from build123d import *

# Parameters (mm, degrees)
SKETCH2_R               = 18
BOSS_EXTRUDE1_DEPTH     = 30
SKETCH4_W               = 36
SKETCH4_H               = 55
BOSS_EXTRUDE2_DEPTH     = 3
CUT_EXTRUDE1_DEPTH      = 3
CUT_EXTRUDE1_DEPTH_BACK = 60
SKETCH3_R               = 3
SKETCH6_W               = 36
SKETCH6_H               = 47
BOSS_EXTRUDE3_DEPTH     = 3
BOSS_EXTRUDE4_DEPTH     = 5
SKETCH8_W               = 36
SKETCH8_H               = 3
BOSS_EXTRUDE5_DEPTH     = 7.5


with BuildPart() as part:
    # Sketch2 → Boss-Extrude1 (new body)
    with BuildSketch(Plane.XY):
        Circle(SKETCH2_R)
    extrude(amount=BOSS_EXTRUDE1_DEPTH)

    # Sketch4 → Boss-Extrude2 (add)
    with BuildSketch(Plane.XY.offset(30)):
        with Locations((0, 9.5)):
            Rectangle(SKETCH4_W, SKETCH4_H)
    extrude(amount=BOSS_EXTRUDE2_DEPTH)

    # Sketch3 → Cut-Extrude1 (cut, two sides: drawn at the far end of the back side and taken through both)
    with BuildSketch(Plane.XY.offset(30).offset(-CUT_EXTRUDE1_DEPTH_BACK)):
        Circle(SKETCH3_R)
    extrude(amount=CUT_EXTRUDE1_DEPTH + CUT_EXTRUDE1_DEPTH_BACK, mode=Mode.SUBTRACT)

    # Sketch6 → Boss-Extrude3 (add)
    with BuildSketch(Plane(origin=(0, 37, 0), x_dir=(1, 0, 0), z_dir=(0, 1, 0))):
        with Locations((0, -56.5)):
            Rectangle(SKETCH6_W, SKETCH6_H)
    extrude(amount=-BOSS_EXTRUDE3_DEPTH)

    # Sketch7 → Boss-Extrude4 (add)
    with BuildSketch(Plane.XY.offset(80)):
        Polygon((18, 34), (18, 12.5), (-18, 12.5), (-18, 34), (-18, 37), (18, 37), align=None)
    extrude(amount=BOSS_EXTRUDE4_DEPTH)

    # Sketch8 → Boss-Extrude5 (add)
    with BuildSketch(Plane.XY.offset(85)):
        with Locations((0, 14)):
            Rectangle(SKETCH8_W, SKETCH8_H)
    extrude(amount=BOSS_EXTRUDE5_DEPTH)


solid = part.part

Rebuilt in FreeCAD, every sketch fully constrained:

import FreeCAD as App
import Part
import Sketcher

V = App.Vector
Q = App.Units.Quantity

doc = App.newDocument("Part")
params = doc.addObject("Spreadsheet::Sheet", "Params")
for row, (alias, value) in enumerate([
    ("sketch1_diameter", "36 mm"),
    ("pad1_length", "30 mm"),
    ("sketch2_width", "36 mm"),
    ("sketch2_height", "55 mm"),
    ("pad2_length", "3 mm"),
    ("sketch3_diameter", "6 mm"),
    ("sketch4_width", "36 mm"),
    ("sketch4_height", "47 mm"),
    ("pad3_length", "3 mm"),
    ("sketch5_width", "36 mm"),
    ("sketch5_height", "24.5 mm"),
    ("pad4_length", "5 mm"),
    ("sketch6_width", "36 mm"),
    ("sketch6_height", "3 mm"),
    ("pad5_length", "7.5 mm"),
], start=1):
    params.set(f"A{row}", alias)
    params.set(f"B{row}", "=" + value)
    params.setAlias(f"B{row}", alias)

body = doc.addObject("PartDesign::Body", "Body")

# Sketch on XY plane
sketch1 = body.newObject("Sketcher::SketchObject", "Sketch")
sketch1.AttachmentSupport = (doc.getObject("XY_Plane"), [""])
sketch1.MapMode = "FlatFace"
sketch1.addGeometry(Part.Circle(V(0, 0, 0), V(0, 0, 1), 18), False)
sketch1.addConstraint([
    Sketcher.Constraint("Coincident", 0, 3, -1, 1),
    Sketcher.Constraint("Diameter", 0, Q("36 mm")),
])
sketch1.setExpression("Constraints[1]", "Params.sketch1_diameter")
pad1 = body.newObject("PartDesign::Pad", "Pad")
pad1.Profile = sketch1
pad1.setExpression("Length", "Params.pad1_length")

# Sketch on XY plane
sketch2 = body.newObject("Sketcher::SketchObject", "Sketch001")
sketch2.AttachmentSupport = (doc.getObject("XY_Plane"), [""])
sketch2.MapMode = "FlatFace"
sketch2.AttachmentOffset = App.Placement(V(0, 0, 30), App.Rotation())
sketch2.addGeometry([
    Part.LineSegment(V(-18, 37, 0), V(-18, -18, 0)),
    Part.LineSegment(V(-18, -18, 0), V(18, -18, 0)),
    Part.LineSegment(V(18, -18, 0), V(18, 37, 0)),
    Part.LineSegment(V(18, 37, 0), V(-18, 37, 0)),
], False)
sketch2.addConstraint([
    Sketcher.Constraint("Coincident", 0, 2, 1, 1),
    Sketcher.Constraint("Coincident", 1, 2, 2, 1),
    Sketcher.Constraint("Coincident", 2, 2, 3, 1),
    Sketcher.Constraint("Coincident", 3, 2, 0, 1),
    Sketcher.Constraint("Vertical", 0),
    Sketcher.Constraint("Horizontal", 1),
    Sketcher.Constraint("Vertical", 2),
    Sketcher.Constraint("Horizontal", 3),
    Sketcher.Constraint("DistanceX", 1, 1, 1, 2, Q("36 mm")),
    Sketcher.Constraint("DistanceY", 0, 2, 0, 1, Q("55 mm")),
    Sketcher.Constraint("DistanceX", 0, 2, -1, 1, Q("18 mm")),
    Sketcher.Constraint("DistanceY", 0, 2, -1, 1, Q("18 mm")),
])
sketch2.setExpression("Constraints[8]", "Params.sketch2_width")
sketch2.setExpression("Constraints[9]", "Params.sketch2_height")
pad2 = body.newObject("PartDesign::Pad", "Pad001")
pad2.Profile = sketch2
pad2.setExpression("Length", "Params.pad2_length")

# Sketch on XY plane
sketch3 = body.newObject("Sketcher::SketchObject", "Sketch002")
sketch3.AttachmentSupport = (doc.getObject("XY_Plane"), [""])
sketch3.MapMode = "FlatFace"
sketch3.AttachmentOffset = App.Placement(V(0, 0, 30), App.Rotation())
sketch3.addGeometry(Part.Circle(V(0, 0, 0), V(0, 0, 1), 3), False)
sketch3.addConstraint([
    Sketcher.Constraint("Coincident", 0, 3, -1, 1),
    Sketcher.Constraint("Diameter", 0, Q("6 mm")),
])
sketch3.setExpression("Constraints[1]", "Params.sketch3_diameter")
pocket1 = body.newObject("PartDesign::Pocket", "Pocket")
pocket1.Profile = sketch3
pocket1.Type = "ThroughAll"
pocket1.Midplane = True

# Sketch on XZ plane
sketch4 = body.newObject("Sketcher::SketchObject", "Sketch003")
sketch4.AttachmentSupport = (doc.getObject("XZ_Plane"), [""])
sketch4.MapMode = "FlatFace"
sketch4.AttachmentOffset = App.Placement(V(0, 0, -37), App.Rotation())
sketch4.addGeometry([
    Part.LineSegment(V(-18, 33, 0), V(-18, 80, 0)),
    Part.LineSegment(V(-18, 80, 0), V(18, 80, 0)),
    Part.LineSegment(V(18, 80, 0), V(18, 33, 0)),
    Part.LineSegment(V(18, 33, 0), V(-18, 33, 0)),
], False)
sketch4.addConstraint([
    Sketcher.Constraint("Coincident", 0, 2, 1, 1),
    Sketcher.Constraint("Coincident", 1, 2, 2, 1),
    Sketcher.Constraint("Coincident", 2, 2, 3, 1),
    Sketcher.Constraint("Coincident", 3, 2, 0, 1),
    Sketcher.Constraint("Vertical", 0),
    Sketcher.Constraint("Horizontal", 1),
    Sketcher.Constraint("Vertical", 2),
    Sketcher.Constraint("Horizontal", 3),
    Sketcher.Constraint("DistanceX", 1, 1, 1, 2, Q("36 mm")),
    Sketcher.Constraint("DistanceY", 0, 1, 0, 2, Q("47 mm")),
    Sketcher.Constraint("DistanceX", 0, 2, -1, 1, Q("18 mm")),
    Sketcher.Constraint("DistanceY", -1, 1, 0, 2, Q("80 mm")),
])
sketch4.setExpression("Constraints[8]", "Params.sketch4_width")
sketch4.setExpression("Constraints[9]", "Params.sketch4_height")
pad3 = body.newObject("PartDesign::Pad", "Pad002")
pad3.Profile = sketch4
pad3.setExpression("Length", "Params.pad3_length")

# Sketch on XY plane
sketch5 = body.newObject("Sketcher::SketchObject", "Sketch004")
sketch5.AttachmentSupport = (doc.getObject("XY_Plane"), [""])
sketch5.MapMode = "FlatFace"
sketch5.AttachmentOffset = App.Placement(V(0, 0, 80), App.Rotation())
sketch5.addGeometry([
    Part.LineSegment(V(18, 12, 0), V(18, 37, 0)),
    Part.LineSegment(V(18, 37, 0), V(-18, 37, 0)),
    Part.LineSegment(V(-18, 37, 0), V(-18, 12, 0)),
    Part.LineSegment(V(-18, 12, 0), V(18, 12, 0)),
], False)
sketch5.addConstraint([
    Sketcher.Constraint("Coincident", 0, 2, 1, 1),
    Sketcher.Constraint("Coincident", 1, 2, 2, 1),
    Sketcher.Constraint("Coincident", 2, 2, 3, 1),
    Sketcher.Constraint("Coincident", 3, 2, 0, 1),
    Sketcher.Constraint("Vertical", 0),
    Sketcher.Constraint("Horizontal", 1),
    Sketcher.Constraint("Vertical", 2),
    Sketcher.Constraint("Horizontal", 3),
    Sketcher.Constraint("DistanceX", 1, 2, 1, 1, Q("36 mm")),
    Sketcher.Constraint("DistanceY", 0, 1, 0, 2, Q("24.5 mm")),
    Sketcher.Constraint("DistanceX", -1, 1, 0, 2, Q("18 mm")),
    Sketcher.Constraint("DistanceY", -1, 1, 0, 2, Q("37 mm")),
])
sketch5.setExpression("Constraints[8]", "Params.sketch5_width")
sketch5.setExpression("Constraints[9]", "Params.sketch5_height")
pad4 = body.newObject("PartDesign::Pad", "Pad003")
pad4.Profile = sketch5
pad4.setExpression("Length", "Params.pad4_length")

# Sketch on XY plane
sketch6 = body.newObject("Sketcher::SketchObject", "Sketch005")
sketch6.AttachmentSupport = (doc.getObject("XY_Plane"), [""])
sketch6.MapMode = "FlatFace"
sketch6.AttachmentOffset = App.Placement(V(0, 0, 85), App.Rotation())
sketch6.addGeometry([
    Part.LineSegment(V(-18, 15.5, 0), V(-18, 12.5, 0)),
    Part.LineSegment(V(-18, 12.5, 0), V(18, 12.5, 0)),
    Part.LineSegment(V(18, 12.5, 0), V(18, 15.5, 0)),
    Part.LineSegment(V(18, 15.5, 0), V(-18, 15.5, 0)),
], False)
sketch6.addConstraint([
    Sketcher.Constraint("Coincident", 0, 2, 1, 1),
    Sketcher.Constraint("Coincident", 1, 2, 2, 1),
    Sketcher.Constraint("Coincident", 2, 2, 3, 1),
    Sketcher.Constraint("Coincident", 3, 2, 0, 1),
    Sketcher.Constraint("Vertical", 0),
    Sketcher.Constraint("Horizontal", 1),
    Sketcher.Constraint("Vertical", 2),
    Sketcher.Constraint("Horizontal", 3),
    Sketcher.Constraint("DistanceX", 1, 1, 1, 2, Q("36 mm")),
    Sketcher.Constraint("DistanceY", 0, 2, 0, 1, Q("3 mm")),
    Sketcher.Constraint("DistanceX", 0, 2, -1, 1, Q("18 mm")),
    Sketcher.Constraint("DistanceY", -1, 1, 0, 2, Q("12.5 mm")),
])
sketch6.setExpression("Constraints[8]", "Params.sketch6_width")
sketch6.setExpression("Constraints[9]", "Params.sketch6_height")
pad5 = body.newObject("PartDesign::Pad", "Pad004")
pad5.Profile = sketch6
pad5.setExpression("Length", "Params.pad5_length")

doc.recompute()
